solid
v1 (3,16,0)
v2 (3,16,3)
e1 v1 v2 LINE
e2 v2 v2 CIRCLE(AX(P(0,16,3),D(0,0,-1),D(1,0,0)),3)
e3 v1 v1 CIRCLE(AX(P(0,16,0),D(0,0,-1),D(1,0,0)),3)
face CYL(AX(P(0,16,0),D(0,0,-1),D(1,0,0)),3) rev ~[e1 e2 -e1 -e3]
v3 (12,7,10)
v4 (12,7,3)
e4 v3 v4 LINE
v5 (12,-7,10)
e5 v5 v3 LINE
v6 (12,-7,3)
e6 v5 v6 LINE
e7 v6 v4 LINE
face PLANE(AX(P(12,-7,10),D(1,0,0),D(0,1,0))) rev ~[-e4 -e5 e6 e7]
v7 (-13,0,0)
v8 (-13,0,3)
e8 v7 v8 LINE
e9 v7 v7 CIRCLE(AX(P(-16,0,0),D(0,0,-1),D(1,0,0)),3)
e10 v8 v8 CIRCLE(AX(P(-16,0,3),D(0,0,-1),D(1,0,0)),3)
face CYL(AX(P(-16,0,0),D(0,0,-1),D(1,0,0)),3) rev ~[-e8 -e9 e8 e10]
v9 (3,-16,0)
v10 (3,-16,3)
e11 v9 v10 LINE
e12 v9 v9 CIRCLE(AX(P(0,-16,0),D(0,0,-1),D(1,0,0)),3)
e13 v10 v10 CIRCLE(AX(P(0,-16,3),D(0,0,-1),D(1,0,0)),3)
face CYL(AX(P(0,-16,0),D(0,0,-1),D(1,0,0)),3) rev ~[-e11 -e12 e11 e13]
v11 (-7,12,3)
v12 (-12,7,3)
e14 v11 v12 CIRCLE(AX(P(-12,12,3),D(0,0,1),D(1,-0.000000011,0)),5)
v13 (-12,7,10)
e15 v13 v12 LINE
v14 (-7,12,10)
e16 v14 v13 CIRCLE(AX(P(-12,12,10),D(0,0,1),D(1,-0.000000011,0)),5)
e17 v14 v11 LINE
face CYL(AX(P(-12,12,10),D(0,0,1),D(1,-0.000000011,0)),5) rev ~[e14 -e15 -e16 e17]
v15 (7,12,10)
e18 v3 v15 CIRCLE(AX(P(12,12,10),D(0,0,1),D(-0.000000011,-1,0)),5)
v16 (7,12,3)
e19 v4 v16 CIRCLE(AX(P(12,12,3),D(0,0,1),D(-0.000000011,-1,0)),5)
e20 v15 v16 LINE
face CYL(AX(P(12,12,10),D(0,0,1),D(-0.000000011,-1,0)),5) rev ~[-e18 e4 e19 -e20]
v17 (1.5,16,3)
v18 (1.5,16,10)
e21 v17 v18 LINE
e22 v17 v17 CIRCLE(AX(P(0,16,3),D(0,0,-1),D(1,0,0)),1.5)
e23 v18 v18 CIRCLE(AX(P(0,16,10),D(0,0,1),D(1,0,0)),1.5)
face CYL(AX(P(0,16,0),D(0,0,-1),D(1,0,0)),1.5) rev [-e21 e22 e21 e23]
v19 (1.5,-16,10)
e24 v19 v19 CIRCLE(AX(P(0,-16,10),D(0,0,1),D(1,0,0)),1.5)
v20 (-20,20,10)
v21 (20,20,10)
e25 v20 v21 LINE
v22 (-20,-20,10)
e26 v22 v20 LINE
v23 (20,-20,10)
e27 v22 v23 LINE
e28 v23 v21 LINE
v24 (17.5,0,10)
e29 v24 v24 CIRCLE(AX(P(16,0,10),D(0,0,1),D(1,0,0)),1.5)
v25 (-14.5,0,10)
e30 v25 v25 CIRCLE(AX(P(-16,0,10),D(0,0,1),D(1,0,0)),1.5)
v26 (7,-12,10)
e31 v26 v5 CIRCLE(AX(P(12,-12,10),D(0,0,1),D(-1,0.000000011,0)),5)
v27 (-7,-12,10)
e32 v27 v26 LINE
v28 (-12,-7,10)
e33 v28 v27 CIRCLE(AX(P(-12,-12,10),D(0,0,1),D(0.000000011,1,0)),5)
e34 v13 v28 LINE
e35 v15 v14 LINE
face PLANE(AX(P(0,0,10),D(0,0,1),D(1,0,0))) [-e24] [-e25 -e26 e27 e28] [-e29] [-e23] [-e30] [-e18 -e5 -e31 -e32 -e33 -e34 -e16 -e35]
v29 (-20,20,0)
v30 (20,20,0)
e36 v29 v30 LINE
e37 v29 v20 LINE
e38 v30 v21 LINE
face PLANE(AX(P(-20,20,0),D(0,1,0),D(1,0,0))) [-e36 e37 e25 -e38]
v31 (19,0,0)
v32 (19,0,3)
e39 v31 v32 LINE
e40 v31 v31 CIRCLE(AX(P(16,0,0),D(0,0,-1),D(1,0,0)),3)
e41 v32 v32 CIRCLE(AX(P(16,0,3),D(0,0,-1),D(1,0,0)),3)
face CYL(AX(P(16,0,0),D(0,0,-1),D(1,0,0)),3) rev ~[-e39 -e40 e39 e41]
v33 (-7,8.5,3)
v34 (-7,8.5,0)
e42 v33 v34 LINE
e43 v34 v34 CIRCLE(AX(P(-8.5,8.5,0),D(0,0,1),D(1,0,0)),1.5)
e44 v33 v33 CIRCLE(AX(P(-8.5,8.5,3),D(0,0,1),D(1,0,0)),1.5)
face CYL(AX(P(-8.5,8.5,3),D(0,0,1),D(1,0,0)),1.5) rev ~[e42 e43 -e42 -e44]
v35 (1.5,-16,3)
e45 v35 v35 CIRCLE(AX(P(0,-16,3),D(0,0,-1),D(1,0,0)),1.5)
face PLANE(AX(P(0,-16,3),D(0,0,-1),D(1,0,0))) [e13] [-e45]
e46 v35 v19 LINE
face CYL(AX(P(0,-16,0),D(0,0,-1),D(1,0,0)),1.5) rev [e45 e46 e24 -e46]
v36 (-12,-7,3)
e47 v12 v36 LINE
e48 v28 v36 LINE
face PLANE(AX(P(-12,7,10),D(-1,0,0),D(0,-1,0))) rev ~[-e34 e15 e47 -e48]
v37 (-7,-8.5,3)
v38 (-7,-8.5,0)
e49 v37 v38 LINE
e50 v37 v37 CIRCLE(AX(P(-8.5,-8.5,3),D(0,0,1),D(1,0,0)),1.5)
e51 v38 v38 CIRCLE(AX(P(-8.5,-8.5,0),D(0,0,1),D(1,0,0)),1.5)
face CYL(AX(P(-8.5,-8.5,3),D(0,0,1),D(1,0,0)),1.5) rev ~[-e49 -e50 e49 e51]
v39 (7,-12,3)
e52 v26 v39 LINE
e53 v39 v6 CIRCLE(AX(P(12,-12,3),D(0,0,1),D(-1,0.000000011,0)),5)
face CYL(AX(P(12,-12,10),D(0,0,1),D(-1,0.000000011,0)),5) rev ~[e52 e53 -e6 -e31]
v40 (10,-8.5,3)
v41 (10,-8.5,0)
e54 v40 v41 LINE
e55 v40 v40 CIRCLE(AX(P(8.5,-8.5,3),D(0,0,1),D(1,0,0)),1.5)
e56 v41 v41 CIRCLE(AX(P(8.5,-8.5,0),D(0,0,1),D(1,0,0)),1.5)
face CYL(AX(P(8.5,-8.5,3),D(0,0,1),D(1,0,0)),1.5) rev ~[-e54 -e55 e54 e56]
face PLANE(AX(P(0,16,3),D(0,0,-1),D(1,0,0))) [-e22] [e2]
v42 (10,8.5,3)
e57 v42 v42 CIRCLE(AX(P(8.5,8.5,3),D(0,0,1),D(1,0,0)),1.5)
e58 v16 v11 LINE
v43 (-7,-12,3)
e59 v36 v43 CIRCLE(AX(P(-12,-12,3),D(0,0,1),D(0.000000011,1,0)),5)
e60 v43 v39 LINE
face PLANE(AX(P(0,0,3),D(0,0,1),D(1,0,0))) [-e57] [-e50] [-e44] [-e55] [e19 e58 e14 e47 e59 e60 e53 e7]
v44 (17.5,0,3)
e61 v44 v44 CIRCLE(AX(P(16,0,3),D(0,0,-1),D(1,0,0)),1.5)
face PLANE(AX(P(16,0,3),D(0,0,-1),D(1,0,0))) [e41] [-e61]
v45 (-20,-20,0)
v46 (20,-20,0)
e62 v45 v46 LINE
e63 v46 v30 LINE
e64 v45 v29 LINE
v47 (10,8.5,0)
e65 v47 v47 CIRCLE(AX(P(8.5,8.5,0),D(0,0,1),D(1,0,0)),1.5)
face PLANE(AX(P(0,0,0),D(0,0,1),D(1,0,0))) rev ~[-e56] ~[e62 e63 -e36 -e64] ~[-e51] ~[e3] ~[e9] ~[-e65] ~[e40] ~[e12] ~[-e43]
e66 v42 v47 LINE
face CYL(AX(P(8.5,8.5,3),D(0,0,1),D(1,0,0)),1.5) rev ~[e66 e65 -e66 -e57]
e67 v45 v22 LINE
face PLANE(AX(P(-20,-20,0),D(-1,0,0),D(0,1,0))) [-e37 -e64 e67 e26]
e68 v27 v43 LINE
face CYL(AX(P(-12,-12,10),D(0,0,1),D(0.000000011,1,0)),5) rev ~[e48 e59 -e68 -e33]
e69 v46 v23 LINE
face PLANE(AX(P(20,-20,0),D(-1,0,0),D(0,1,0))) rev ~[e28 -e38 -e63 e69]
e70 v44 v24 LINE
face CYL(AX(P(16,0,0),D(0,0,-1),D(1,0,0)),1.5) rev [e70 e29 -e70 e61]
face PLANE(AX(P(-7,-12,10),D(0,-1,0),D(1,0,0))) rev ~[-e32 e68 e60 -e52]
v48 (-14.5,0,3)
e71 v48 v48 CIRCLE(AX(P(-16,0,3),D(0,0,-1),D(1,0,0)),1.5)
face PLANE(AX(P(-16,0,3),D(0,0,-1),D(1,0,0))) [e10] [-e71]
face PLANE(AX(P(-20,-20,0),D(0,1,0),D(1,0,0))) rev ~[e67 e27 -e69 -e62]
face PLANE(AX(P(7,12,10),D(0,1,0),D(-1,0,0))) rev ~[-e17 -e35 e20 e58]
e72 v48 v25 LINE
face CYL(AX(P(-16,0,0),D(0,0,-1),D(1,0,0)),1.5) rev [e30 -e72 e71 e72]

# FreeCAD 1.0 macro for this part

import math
import FreeCAD as App
import Part
import Sketcher
from FreeCAD import Vector
Q = App.Units.Quantity


def add_polygon(sketch, points):
    """Adds a closed chain of lines whose ends are joined by coincident constraints."""
    first, n = sketch.GeometryCount, len(points)
    for a, b in zip(points, points[1:] + points[:1]):
        sketch.addGeometry(Part.LineSegment(App.Vector(*a, 0), App.Vector(*b, 0)), False)
    for i in range(n):
        sketch.addConstraint(Sketcher.Constraint("Coincident", first + i, 2, first + (i + 1) % n, 1))

doc = App.newDocument("Part")
body = doc.addObject("PartDesign::Body", "Body")

# Sketch on XY plane
sketch1 = body.newObject("Sketcher::SketchObject", "Sketch")
sketch1.AttachmentSupport = (doc.getObject("XY_Plane"), [""])
sketch1.MapMode = "FlatFace"
add_polygon(sketch1, [(-20, 20), (-20, -20), (20, -20), (20, 20)])  # lines 0-3
sketch1.addGeometry(Part.Circle(Vector(0, -16, 0), Vector(0, 0, 1), 1.5), False)  # 4
sketch1.addGeometry(Part.Circle(Vector(-16, 0, 0), Vector(0, 0, 1), 1.5), False)  # 5
sketch1.addGeometry(Part.Circle(Vector(16, 0, 0), Vector(0, 0, 1), 1.5), False)  # 6
sketch1.addGeometry(Part.Circle(Vector(0, 16, 0), Vector(0, 0, 1), 1.5), False)  # 7
sketch1.addConstraint([
    Sketcher.Constraint("Vertical", 0),
    Sketcher.Constraint("Horizontal", 1),
    Sketcher.Constraint("Vertical", 2),
    Sketcher.Constraint("Horizontal", 3),
    Sketcher.Constraint("Equal", 4, 5),
    Sketcher.Constraint("Equal", 5, 6),
    Sketcher.Constraint("Equal", 6, 7),
    Sketcher.Constraint("Symmetric", 5, 3, 6, 3, -1, 1),
    Sketcher.Constraint("Symmetric", 4, 3, 7, 3, -1, 1),
    Sketcher.Constraint("Symmetric", 0, 2, 2, 2, -1, 1),
    Sketcher.Constraint("PointOnObject", 4, 3, -2),
    Sketcher.Constraint("PointOnObject", 5, 3, -1),
    Sketcher.Constraint("Equal", 3, 0),
    Sketcher.Constraint("Diameter", 4, Q("3 mm")),
    Sketcher.Constraint("DistanceX", 1, 1, 1, 2, Q("40 mm")),
    Sketcher.Constraint("DistanceY", 4, 3, -1, 1, Q("16 mm")),
    Sketcher.Constraint("DistanceX", 5, 3, -1, 1, Q("16 mm")),
])
pad1 = body.newObject("PartDesign::Pad", "Pad")
pad1.Profile = sketch1
pad1.Length = 10

# Sketch on XY plane
sketch2 = body.newObject("Sketcher::SketchObject", "Sketch001")
sketch2.AttachmentSupport = (doc.getObject("XY_Plane"), [""])
sketch2.MapMode = "FlatFace"
sketch2.AttachmentOffset = App.Placement(Vector(0, 0, 10), App.Rotation())
sketch2.addGeometry([
    Part.LineSegment(Vector(7, 12, 0), Vector(-7, 12, 0)),  # 0
    Part.ArcOfCircle(Part.Circle(Vector(-12, 12, 0), Vector(0, 0, 1), 5), math.radians(0), math.radians(270)),  # 1
    Part.LineSegment(Vector(-12, 7, 0), Vector(-12, -7, 0)),  # 2
    Part.ArcOfCircle(Part.Circle(Vector(-12, -12, 0), Vector(0, 0, 1), 5), math.radians(90), math.radians(360)),  # 3
    Part.LineSegment(Vector(-7, -12, 0), Vector(7, -12, 0)),  # 4
    Part.ArcOfCircle(Part.Circle(Vector(12, -12, 0), Vector(0, 0, 1), 5), math.radians(180), math.radians(450)),  # 5
    Part.LineSegment(Vector(12, -7, 0), Vector(12, 7, 0)),  # 6
    Part.ArcOfCircle(Part.Circle(Vector(12, 12, 0), Vector(0, 0, 1), 5), math.radians(-90), math.radians(180)),  # 7
], False)
sketch2.addConstraint([
    Sketcher.Constraint("Coincident", 0, 2, 1, 1),
    Sketcher.Constraint("Coincident", 1, 2, 2, 1),
    Sketcher.Constraint("Coincident", 2, 2, 3, 1),
    Sketcher.Constraint("Coincident", 3, 2, 4, 1),
    Sketcher.Constraint("Coincident", 4, 2, 5, 1),
    Sketcher.Constraint("Coincident", 5, 2, 6, 1),
    Sketcher.Constraint("Coincident", 6, 2, 7, 1),
    Sketcher.Constraint("Coincident", 7, 2, 0, 1),
    Sketcher.Constraint("Horizontal", 0),
    Sketcher.Constraint("Vertical", 2),
    Sketcher.Constraint("Horizontal", 4),
    Sketcher.Constraint("Vertical", 6),
    Sketcher.Constraint("Equal", 1, 3),
    Sketcher.Constraint("Equal", 3, 5),
    Sketcher.Constraint("Equal", 5, 7),
    Sketcher.Constraint("Symmetric", 1, 3, 5, 3, -1, 1),
    Sketcher.Constraint("Symmetric", 3, 3, 7, 3, -1, 1),
    Sketcher.Constraint("Symmetric", 3, 3, 5, 3, -2),
    Sketcher.Constraint("Horizontal", 7, 3, 0, 2),
    Sketcher.Constraint("Horizontal", 5, 3, 3, 2),
    Sketcher.Constraint("Vertical", 3, 3, 1, 2),
    Sketcher.Constraint("Vertical", 7, 3, 5, 2),
    Sketcher.Constraint("Equal", 4, 2),
    Sketcher.Constraint("Radius", 1, Q("5 mm")),
    Sketcher.Constraint("DistanceX", 0, 2, 0, 1, Q("14 mm")),
])
pocket1 = body.newObject("PartDesign::Pocket", "Pocket")
pocket1.Profile = sketch2
pocket1.Length = 7

# Sketch on XY plane
sketch3 = body.newObject("Sketcher::SketchObject", "Sketch002")
sketch3.AttachmentSupport = (doc.getObject("XY_Plane"), [""])
sketch3.MapMode = "FlatFace"
sketch3.addGeometry([
    Part.Circle(Vector(0, -16, 0), Vector(0, 0, 1), 3),
    Part.Circle(Vector(-16, 0, 0), Vector(0, 0, 1), 3),
    Part.Circle(Vector(0, 16, 0), Vector(0, 0, 1), 3),
    Part.Circle(Vector(16, 0, 0), Vector(0, 0, 1), 3),
], False)
sketch3.addConstraint([
    Sketcher.Constraint("Equal", 0, 1),
    Sketcher.Constraint("Equal", 1, 2),
    Sketcher.Constraint("Equal", 2, 3),
    Sketcher.Constraint("Symmetric", 0, 3, 2, 3, -1, 1),
    Sketcher.Constraint("Symmetric", 1, 3, 3, 3, -1, 1),
    Sketcher.Constraint("PointOnObject", 0, 3, -2),
    Sketcher.Constraint("PointOnObject", 1, 3, -1),
    Sketcher.Constraint("Diameter", 0, Q("6 mm")),
    Sketcher.Constraint("DistanceY", 0, 3, -1, 1, Q("16 mm")),
    Sketcher.Constraint("DistanceX", 1, 3, -1, 1, Q("16 mm")),
])
pocket2 = body.newObject("PartDesign::Pocket", "Pocket001")
pocket2.Profile = sketch3
pocket2.Length = 3
pocket2.Reversed = True

# Sketch on XY plane
sketch4 = body.newObject("Sketcher::SketchObject", "Sketch003")
sketch4.AttachmentSupport = (doc.getObject("XY_Plane"), [""])
sketch4.MapMode = "FlatFace"
sketch4.AttachmentOffset = App.Placement(Vector(0, 0, 3), App.Rotation())
sketch4.addGeometry([
    Part.Circle(Vector(-8.5, 8.5, 0), Vector(0, 0, 1), 1.5),
    Part.Circle(Vector(8.5, 8.5, 0), Vector(0, 0, 1), 1.5),
    Part.Circle(Vector(-8.5, -8.5, 0), Vector(0, 0, 1), 1.5),
    Part.Circle(Vector(8.5, -8.5, 0), Vector(0, 0, 1), 1.5),
], False)
sketch4.addConstraint([
    Sketcher.Constraint("Equal", 0, 1),
    Sketcher.Constraint("Equal", 1, 2),
    Sketcher.Constraint("Equal", 2, 3),
    Sketcher.Constraint("Symmetric", 1, 3, 2, 3, -1, 1),
    Sketcher.Constraint("Symmetric", 0, 3, 3, 3, -1, 1),
    Sketcher.Constraint("Symmetric", 0, 3, 1, 3, -2),
    Sketcher.Constraint("Diameter", 0, Q("3 mm")),
    Sketcher.Constraint("DistanceX", 0, 3, 1, 3, Q("17 mm")),
    Sketcher.Constraint("DistanceY", 2, 3, 0, 3, Q("17 mm")),
])
pocket3 = body.newObject("PartDesign::Pocket", "Pocket002")
pocket3.Profile = sketch4
pocket3.Type = "ThroughAll"

doc.recompute()
